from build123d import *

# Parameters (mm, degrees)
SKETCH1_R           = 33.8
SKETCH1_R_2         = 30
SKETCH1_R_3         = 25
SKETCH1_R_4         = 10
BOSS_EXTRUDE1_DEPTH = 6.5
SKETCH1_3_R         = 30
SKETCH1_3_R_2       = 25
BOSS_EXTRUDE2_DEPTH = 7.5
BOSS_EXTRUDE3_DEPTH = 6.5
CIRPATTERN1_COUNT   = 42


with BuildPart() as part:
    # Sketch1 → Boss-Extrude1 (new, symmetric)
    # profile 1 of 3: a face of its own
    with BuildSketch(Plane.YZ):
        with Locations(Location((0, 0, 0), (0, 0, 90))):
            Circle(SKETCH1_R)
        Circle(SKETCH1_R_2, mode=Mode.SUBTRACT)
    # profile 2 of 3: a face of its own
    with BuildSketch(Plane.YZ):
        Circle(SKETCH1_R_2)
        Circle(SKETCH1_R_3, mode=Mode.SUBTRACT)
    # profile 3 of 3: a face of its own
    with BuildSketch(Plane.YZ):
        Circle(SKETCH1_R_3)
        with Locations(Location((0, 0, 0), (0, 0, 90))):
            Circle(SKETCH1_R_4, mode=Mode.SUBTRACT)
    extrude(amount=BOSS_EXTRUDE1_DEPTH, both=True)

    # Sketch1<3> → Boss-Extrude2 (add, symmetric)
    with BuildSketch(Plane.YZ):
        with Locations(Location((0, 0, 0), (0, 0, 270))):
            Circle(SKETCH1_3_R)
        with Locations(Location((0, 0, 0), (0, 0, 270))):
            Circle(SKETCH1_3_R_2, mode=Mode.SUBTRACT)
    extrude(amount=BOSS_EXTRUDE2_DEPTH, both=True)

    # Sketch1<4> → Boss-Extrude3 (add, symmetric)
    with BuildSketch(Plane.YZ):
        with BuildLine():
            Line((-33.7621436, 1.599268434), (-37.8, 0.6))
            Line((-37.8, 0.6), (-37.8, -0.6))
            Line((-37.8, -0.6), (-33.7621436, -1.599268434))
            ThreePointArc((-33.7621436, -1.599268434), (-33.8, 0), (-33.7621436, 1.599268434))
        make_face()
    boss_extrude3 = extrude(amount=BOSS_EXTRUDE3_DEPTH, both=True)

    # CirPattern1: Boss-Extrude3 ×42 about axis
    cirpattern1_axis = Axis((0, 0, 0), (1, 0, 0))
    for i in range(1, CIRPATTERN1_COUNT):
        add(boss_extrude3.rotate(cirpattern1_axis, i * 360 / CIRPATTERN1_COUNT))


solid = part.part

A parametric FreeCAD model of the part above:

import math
import FreeCAD as App
import Part
import Sketcher

V = App.Vector
Q = App.Units.Quantity

doc = App.newDocument("Part")
body = doc.addObject("PartDesign::Body", "Body")

# Sketch on YZ plane
sketch1 = doc.addObject("Sketcher::SketchObject", "Sketch")
body.addObject(sketch1)
sketch1.AttachmentSupport = (doc.YZ_Plane, [""])
sketch1.MapMode = "FlatFace"
sketch1.addGeometry([
    Part.Circle(V(0, 0, 0), V(0, 0, 1), 34),
    Part.Circle(V(0, 0, 0), V(0, 0, 1), 10),
], False)
sketch1.addConstraint([
    Sketcher.Constraint("Coincident", 0, 3, -1, 1),
    Sketcher.Constraint("Coincident", 1, 3, -1, 1),
    Sketcher.Constraint("Diameter", 1, Q("20 mm")),
    Sketcher.Constraint("Diameter", 0, Q("67.6 mm")),
])
pad1 = doc.addObject("PartDesign::Pad", "Pad")
body.addObject(pad1)
pad1.Profile = sketch1
pad1.Length = 13
pad1.Midplane = True

# Sketch on YZ plane
sketch2 = doc.addObject("Sketcher::SketchObject", "Sketch001")
body.addObject(sketch2)
sketch2.AttachmentSupport = (doc.YZ_Plane, [""])
sketch2.MapMode = "FlatFace"
sketch2.addGeometry([
    Part.Circle(V(0, 0, 0), V(0, 0, 1), 30),
    Part.Circle(V(0, 0, 0), V(0, 0, 1), 25),
], False)
sketch2.addConstraint([
    Sketcher.Constraint("Coincident", 0, 3, -1, 1),
    Sketcher.Constraint("Coincident", 1, 3, -1, 1),
    Sketcher.Constraint("Diameter", 0, Q("60 mm")),
    Sketcher.Constraint("Diameter", 1, Q("50 mm")),
])
pad2 = doc.addObject("PartDesign::Pad", "Pad001")
body.addObject(pad2)
pad2.Profile = sketch2
pad2.Length = 15
pad2.Midplane = True

# Sketch on YZ plane
sketch3 = doc.addObject("Sketcher::SketchObject", "Sketch002")
body.addObject(sketch3)
sketch3.AttachmentSupport = (doc.YZ_Plane, [""])
sketch3.MapMode = "FlatFace"
sketch3.addGeometry([
    Part.LineSegment(V(-33.8, 1.6, 0), V(-37.8, 0.6, 0)),
    Part.LineSegment(V(-37.8, 0.6, 0), V(-37.8, -0.6, 0)),
    Part.LineSegment(V(-37.8, -0.6, 0), V(-33.8, -1.6, 0)),
    Part.ArcOfCircle(Part.Circle(V(0, 0, 0), V(0, 0, 1), 33.8), math.radians(177.29), math.radians(182.71)),
], False)
sketch3.addConstraint([
    Sketcher.Constraint("Coincident", 0, 2, 1, 1),
    Sketcher.Constraint("Coincident", 1, 2, 2, 1),
    Sketcher.Constraint("Coincident", 2, 2, 3, 2),
    Sketcher.Constraint("Coincident", 3, 1, 0, 1),
    Sketcher.Constraint("Vertical", 1),
    Sketcher.Constraint("Coincident", 3, 3, -1, 1),
    Sketcher.Constraint("Vertical", 2, 2, 3, 1),
    Sketcher.Constraint("Equal", 0, 2),
    Sketcher.Constraint("Radius", 3, Q("33.8 mm")),
    Sketcher.Constraint("DistanceY", 1, 2, 1, 1, Q("1.2 mm")),
    Sketcher.Constraint("Angle", 0, Q("-166.1 deg")),
    Sketcher.Constraint("DistanceX", 0, 2, -1, 1, Q("37.8 mm")),
])
pad3 = doc.addObject("PartDesign::Pad", "Pad002")
body.addObject(pad3)
pad3.Profile = sketch3
pad3.Length = 13
pad3.Midplane = True
doc.recompute()

polarpattern = doc.addObject("PartDesign::PolarPattern", "PolarPattern")
body.addObject(polarpattern)
polarpattern.Originals = [pad3]
polarpattern.Axis = (doc.X_Axis, [""])
polarpattern.Angle = 360
polarpattern.Occurrences = 42
body.Tip = polarpattern

doc.recompute()
